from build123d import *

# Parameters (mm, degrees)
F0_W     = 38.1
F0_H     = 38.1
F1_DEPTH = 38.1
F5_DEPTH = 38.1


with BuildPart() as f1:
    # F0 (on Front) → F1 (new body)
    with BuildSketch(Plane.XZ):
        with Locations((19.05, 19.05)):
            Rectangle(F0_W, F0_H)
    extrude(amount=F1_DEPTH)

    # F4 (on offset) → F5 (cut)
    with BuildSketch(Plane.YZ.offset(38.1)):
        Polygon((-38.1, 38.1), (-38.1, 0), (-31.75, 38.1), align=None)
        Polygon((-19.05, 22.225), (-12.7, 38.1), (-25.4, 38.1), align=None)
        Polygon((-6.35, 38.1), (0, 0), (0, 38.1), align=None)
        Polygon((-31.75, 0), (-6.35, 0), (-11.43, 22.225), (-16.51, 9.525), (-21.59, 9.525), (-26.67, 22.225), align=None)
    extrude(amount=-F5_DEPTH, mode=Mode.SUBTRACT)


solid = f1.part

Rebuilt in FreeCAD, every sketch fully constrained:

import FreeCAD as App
import Part
import Sketcher
Q = App.Units.Quantity

doc = App.newDocument("Part")
params = doc.addObject("Spreadsheet::Sheet", "Params")
for row, (alias, value) in enumerate([
    ("sketch1_width", "1.5 in"),
    ("pad1_length", "1.5 in"),
    ("sketch2_width", "1 in"),
    ("sketch2_width2", "0.5 in"),
    ("sketch2_width3", "0.2 in"),
    ("sketch2_height", "1.5 in"),
    ("pocket1_length", "1.5 in"),
], start=1):
    params.set(f"A{row}", alias)
    params.set(f"B{row}", "=" + value)
    params.setAlias(f"B{row}", alias)

body = doc.addObject("PartDesign::Body", "Body")

# Sketch on XZ plane
sketch1 = body.newObject("Sketcher::SketchObject", "Sketch")
sketch1.AttachmentSupport = (doc.getObject("XZ_Plane"), [""])
sketch1.MapMode = "FlatFace"
sketch1.addGeometry(Part.LineSegment(App.Vector(0, 38, 0), App.Vector(0, 0, 0)), False)
sketch1.addGeometry(Part.LineSegment(App.Vector(0, 0, 0), App.Vector(38, 0, 0)), False)
sketch1.addGeometry(Part.LineSegment(App.Vector(38, 0, 0), App.Vector(38, 38, 0)), False)
sketch1.addGeometry(Part.LineSegment(App.Vector(38, 38, 0), App.Vector(0, 38, 0)), False)
sketch1.addConstraint(Sketcher.Constraint("Coincident", 0, 2, 1, 1))
sketch1.addConstraint(Sketcher.Constraint("Coincident", 1, 2, 2, 1))
sketch1.addConstraint(Sketcher.Constraint("Coincident", 2, 2, 3, 1))
sketch1.addConstraint(Sketcher.Constraint("Coincident", 3, 2, 0, 1))
sketch1.addConstraint(Sketcher.Constraint("Vertical", 0))
sketch1.addConstraint(Sketcher.Constraint("Horizontal", 1))
sketch1.addConstraint(Sketcher.Constraint("Vertical", 2))
sketch1.addConstraint(Sketcher.Constraint("Horizontal", 3))
sketch1.addConstraint(Sketcher.Constraint("Coincident", 0, 2, -1, 1))
sketch1.addConstraint(Sketcher.Constraint("Equal", 3, 0))
sketch1.addConstraint(Sketcher.Constraint("DistanceX", 1, 1, 1, 2, Q("1.5 in")))
sketch1.setExpression("Constraints[10]", "Params.sketch1_width")
pad1 = body.newObject("PartDesign::Pad", "Pad")
pad1.Profile = sketch1
pad1.setExpression("Length", "Params.pad1_length")

# Sketch on YZ plane
sketch2 = body.newObject("Sketcher::SketchObject", "Sketch001")
sketch2.AttachmentSupport = (doc.getObject("YZ_Plane"), [""])
sketch2.MapMode = "FlatFace"
sketch2.AttachmentOffset = App.Placement(App.Vector(0, 0, 1.5 * 25.4), App.Rotation())
sketch2.addGeometry(Part.LineSegment(App.Vector(-38, 38, 0), App.Vector(-38, 0, 0)), False)
sketch2.addGeometry(Part.LineSegment(App.Vector(-38, 0, 0), App.Vector(-32, 38, 0)), False)
sketch2.addGeometry(Part.LineSegment(App.Vector(-32, 38, 0), App.Vector(-38, 38, 0)), False)
sketch2.addGeometry(Part.LineSegment(App.Vector(-19, 22, 0), App.Vector(-13, 38, 0)), False)
sketch2.addGeometry(Part.LineSegment(App.Vector(-13, 38, 0), App.Vector(-25, 38, 0)), False)
sketch2.addGeometry(Part.LineSegment(App.Vector(-25, 38, 0), App.Vector(-19, 22, 0)), False)
sketch2.addGeometry(Part.LineSegment(App.Vector(-6, 38, 0), App.Vector(0, 0, 0)), False)
sketch2.addGeometry(Part.LineSegment(App.Vector(0, 0, 0), App.Vector(0, 38, 0)), False)
sketch2.addGeometry(Part.LineSegment(App.Vector(0, 38, 0), App.Vector(-6, 38, 0)), False)
sketch2.addGeometry(Part.LineSegment(App.Vector(-32, 0, 0), App.Vector(-6, 0, 0)), False)
sketch2.addGeometry(Part.LineSegment(App.Vector(-6, 0, 0), App.Vector(-11, 22, 0)), False)
sketch2.addGeometry(Part.LineSegment(App.Vector(-11, 22, 0), App.Vector(-17, 10, 0)), False)
sketch2.addGeometry(Part.LineSegment(App.Vector(-17, 10, 0), App.Vector(-22, 10, 0)), False)
sketch2.addGeometry(Part.LineSegment(App.Vector(-22, 10, 0), App.Vector(-27, 22, 0)), False)
sketch2.addGeometry(Part.LineSegment(App.Vector(-27, 22, 0), App.Vector(-32, 0, 0)), False)
sketch2.addConstraint(Sketcher.Constraint("Coincident", 0, 2, 1, 1))
sketch2.addConstraint(Sketcher.Constraint("Coincident", 1, 2, 2, 1))
sketch2.addConstraint(Sketcher.Constraint("Coincident", 2, 2, 0, 1))
sketch2.addConstraint(Sketcher.Constraint("Coincident", 3, 2, 4, 1))
sketch2.addConstraint(Sketcher.Constraint("Coincident", 4, 2, 5, 1))
sketch2.addConstraint(Sketcher.Constraint("Coincident", 5, 2, 3, 1))
sketch2.addConstraint(Sketcher.Constraint("Coincident", 6, 2, 7, 1))
sketch2.addConstraint(Sketcher.Constraint("Coincident", 7, 2, 8, 1))
sketch2.addConstraint(Sketcher.Constraint("Coincident", 8, 2, 6, 1))
sketch2.addConstraint(Sketcher.Constraint("Coincident", 9, 2, 10, 1))
sketch2.addConstraint(Sketcher.Constraint("Coincident", 10, 2, 11, 1))
sketch2.addConstraint(Sketcher.Constraint("Coincident", 11, 2, 12, 1))
sketch2.addConstraint(Sketcher.Constraint("Coincident", 12, 2, 13, 1))
sketch2.addConstraint(Sketcher.Constraint("Coincident", 13, 2, 14, 1))
sketch2.addConstraint(Sketcher.Constraint("Coincident", 14, 2, 9, 1))
sketch2.addConstraint(Sketcher.Constraint("Vertical", 0))
sketch2.addConstraint(Sketcher.Constraint("Horizontal", 2))
sketch2.addConstraint(Sketcher.Constraint("Horizontal", 4))
sketch2.addConstraint(Sketcher.Constraint("Vertical", 7))
sketch2.addConstraint(Sketcher.Constraint("Horizontal", 8))
sketch2.addConstraint(Sketcher.Constraint("Horizontal", 9))
sketch2.addConstraint(Sketcher.Constraint("Horizontal", 12))
sketch2.addConstraint(Sketcher.Constraint("Coincident", 6, 2, -1, 1))
sketch2.addConstraint(Sketcher.Constraint("PointOnObject", 0, 2, -1))
sketch2.addConstraint(Sketcher.Constraint("PointOnObject", 9, 2, -1))
sketch2.addConstraint(Sketcher.Constraint("Parallel", 3, 11))
sketch2.addConstraint(Sketcher.Constraint("Parallel", 5, 13))
sketch2.addConstraint(Sketcher.Constraint("Horizontal", 2, 2, 3, 2))
sketch2.addConstraint(Sketcher.Constraint("Horizontal", 4, 2, 7, 2))
sketch2.addConstraint(Sketcher.Constraint("Horizontal", 5, 2, 10, 2))
sketch2.addConstraint(Sketcher.Constraint("Horizontal", 10, 2, 13, 2))
sketch2.addConstraint(Sketcher.Constraint("Vertical", 8, 2, 9, 2))
sketch2.addConstraint(Sketcher.Constraint("Vertical", 1, 2, 14, 2))
sketch2.addConstraint(Sketcher.Constraint("Equal", 2, 8))
sketch2.addConstraint(Sketcher.Constraint("Equal", 3, 5))
sketch2.addConstraint(Sketcher.Constraint("Equal", 10, 14))
sketch2.addConstraint(Sketcher.Constraint("DistanceX", 9, 1, 9, 2, Q("1 in")))
sketch2.addConstraint(Sketcher.Constraint("DistanceX", 4, 2, 4, 1, Q("0.5 in")))
sketch2.addConstraint(Sketcher.Constraint("DistanceX", 12, 2, 12, 1, Q("0.2 in")))
sketch2.addConstraint(Sketcher.Constraint("DistanceY", 0, 2, 0, 1, Q("1.5 in")))
sketch2.addConstraint(Sketcher.Constraint("DistanceX", 4, 2, -1, 1, Q("1 in")))
sketch2.addConstraint(Sketcher.Constraint("DistanceX", 2, 2, 3, 2, Q("1 in")))
sketch2.addConstraint(Sketcher.Constraint("DistanceX", 5, 2, 10, 2, Q("0.3 in")))
sketch2.addConstraint(Sketcher.Constraint("DistanceY", 11, 2, 5, 2, Q("0.5 in")))
sketch2.setExpression("Constraints[36]", "Params.sketch2_width")
sketch2.setExpression("Constraints[37]", "Params.sketch2_width2")
sketch2.setExpression("Constraints[38]", "Params.sketch2_width3")
sketch2.setExpression("Constraints[39]", "Params.sketch2_height")
pocket1 = body.newObject("PartDesign::Pocket", "Pocket")
pocket1.Profile = sketch2
pocket1.setExpression("Length", "Params.pocket1_length")

doc.recompute()
